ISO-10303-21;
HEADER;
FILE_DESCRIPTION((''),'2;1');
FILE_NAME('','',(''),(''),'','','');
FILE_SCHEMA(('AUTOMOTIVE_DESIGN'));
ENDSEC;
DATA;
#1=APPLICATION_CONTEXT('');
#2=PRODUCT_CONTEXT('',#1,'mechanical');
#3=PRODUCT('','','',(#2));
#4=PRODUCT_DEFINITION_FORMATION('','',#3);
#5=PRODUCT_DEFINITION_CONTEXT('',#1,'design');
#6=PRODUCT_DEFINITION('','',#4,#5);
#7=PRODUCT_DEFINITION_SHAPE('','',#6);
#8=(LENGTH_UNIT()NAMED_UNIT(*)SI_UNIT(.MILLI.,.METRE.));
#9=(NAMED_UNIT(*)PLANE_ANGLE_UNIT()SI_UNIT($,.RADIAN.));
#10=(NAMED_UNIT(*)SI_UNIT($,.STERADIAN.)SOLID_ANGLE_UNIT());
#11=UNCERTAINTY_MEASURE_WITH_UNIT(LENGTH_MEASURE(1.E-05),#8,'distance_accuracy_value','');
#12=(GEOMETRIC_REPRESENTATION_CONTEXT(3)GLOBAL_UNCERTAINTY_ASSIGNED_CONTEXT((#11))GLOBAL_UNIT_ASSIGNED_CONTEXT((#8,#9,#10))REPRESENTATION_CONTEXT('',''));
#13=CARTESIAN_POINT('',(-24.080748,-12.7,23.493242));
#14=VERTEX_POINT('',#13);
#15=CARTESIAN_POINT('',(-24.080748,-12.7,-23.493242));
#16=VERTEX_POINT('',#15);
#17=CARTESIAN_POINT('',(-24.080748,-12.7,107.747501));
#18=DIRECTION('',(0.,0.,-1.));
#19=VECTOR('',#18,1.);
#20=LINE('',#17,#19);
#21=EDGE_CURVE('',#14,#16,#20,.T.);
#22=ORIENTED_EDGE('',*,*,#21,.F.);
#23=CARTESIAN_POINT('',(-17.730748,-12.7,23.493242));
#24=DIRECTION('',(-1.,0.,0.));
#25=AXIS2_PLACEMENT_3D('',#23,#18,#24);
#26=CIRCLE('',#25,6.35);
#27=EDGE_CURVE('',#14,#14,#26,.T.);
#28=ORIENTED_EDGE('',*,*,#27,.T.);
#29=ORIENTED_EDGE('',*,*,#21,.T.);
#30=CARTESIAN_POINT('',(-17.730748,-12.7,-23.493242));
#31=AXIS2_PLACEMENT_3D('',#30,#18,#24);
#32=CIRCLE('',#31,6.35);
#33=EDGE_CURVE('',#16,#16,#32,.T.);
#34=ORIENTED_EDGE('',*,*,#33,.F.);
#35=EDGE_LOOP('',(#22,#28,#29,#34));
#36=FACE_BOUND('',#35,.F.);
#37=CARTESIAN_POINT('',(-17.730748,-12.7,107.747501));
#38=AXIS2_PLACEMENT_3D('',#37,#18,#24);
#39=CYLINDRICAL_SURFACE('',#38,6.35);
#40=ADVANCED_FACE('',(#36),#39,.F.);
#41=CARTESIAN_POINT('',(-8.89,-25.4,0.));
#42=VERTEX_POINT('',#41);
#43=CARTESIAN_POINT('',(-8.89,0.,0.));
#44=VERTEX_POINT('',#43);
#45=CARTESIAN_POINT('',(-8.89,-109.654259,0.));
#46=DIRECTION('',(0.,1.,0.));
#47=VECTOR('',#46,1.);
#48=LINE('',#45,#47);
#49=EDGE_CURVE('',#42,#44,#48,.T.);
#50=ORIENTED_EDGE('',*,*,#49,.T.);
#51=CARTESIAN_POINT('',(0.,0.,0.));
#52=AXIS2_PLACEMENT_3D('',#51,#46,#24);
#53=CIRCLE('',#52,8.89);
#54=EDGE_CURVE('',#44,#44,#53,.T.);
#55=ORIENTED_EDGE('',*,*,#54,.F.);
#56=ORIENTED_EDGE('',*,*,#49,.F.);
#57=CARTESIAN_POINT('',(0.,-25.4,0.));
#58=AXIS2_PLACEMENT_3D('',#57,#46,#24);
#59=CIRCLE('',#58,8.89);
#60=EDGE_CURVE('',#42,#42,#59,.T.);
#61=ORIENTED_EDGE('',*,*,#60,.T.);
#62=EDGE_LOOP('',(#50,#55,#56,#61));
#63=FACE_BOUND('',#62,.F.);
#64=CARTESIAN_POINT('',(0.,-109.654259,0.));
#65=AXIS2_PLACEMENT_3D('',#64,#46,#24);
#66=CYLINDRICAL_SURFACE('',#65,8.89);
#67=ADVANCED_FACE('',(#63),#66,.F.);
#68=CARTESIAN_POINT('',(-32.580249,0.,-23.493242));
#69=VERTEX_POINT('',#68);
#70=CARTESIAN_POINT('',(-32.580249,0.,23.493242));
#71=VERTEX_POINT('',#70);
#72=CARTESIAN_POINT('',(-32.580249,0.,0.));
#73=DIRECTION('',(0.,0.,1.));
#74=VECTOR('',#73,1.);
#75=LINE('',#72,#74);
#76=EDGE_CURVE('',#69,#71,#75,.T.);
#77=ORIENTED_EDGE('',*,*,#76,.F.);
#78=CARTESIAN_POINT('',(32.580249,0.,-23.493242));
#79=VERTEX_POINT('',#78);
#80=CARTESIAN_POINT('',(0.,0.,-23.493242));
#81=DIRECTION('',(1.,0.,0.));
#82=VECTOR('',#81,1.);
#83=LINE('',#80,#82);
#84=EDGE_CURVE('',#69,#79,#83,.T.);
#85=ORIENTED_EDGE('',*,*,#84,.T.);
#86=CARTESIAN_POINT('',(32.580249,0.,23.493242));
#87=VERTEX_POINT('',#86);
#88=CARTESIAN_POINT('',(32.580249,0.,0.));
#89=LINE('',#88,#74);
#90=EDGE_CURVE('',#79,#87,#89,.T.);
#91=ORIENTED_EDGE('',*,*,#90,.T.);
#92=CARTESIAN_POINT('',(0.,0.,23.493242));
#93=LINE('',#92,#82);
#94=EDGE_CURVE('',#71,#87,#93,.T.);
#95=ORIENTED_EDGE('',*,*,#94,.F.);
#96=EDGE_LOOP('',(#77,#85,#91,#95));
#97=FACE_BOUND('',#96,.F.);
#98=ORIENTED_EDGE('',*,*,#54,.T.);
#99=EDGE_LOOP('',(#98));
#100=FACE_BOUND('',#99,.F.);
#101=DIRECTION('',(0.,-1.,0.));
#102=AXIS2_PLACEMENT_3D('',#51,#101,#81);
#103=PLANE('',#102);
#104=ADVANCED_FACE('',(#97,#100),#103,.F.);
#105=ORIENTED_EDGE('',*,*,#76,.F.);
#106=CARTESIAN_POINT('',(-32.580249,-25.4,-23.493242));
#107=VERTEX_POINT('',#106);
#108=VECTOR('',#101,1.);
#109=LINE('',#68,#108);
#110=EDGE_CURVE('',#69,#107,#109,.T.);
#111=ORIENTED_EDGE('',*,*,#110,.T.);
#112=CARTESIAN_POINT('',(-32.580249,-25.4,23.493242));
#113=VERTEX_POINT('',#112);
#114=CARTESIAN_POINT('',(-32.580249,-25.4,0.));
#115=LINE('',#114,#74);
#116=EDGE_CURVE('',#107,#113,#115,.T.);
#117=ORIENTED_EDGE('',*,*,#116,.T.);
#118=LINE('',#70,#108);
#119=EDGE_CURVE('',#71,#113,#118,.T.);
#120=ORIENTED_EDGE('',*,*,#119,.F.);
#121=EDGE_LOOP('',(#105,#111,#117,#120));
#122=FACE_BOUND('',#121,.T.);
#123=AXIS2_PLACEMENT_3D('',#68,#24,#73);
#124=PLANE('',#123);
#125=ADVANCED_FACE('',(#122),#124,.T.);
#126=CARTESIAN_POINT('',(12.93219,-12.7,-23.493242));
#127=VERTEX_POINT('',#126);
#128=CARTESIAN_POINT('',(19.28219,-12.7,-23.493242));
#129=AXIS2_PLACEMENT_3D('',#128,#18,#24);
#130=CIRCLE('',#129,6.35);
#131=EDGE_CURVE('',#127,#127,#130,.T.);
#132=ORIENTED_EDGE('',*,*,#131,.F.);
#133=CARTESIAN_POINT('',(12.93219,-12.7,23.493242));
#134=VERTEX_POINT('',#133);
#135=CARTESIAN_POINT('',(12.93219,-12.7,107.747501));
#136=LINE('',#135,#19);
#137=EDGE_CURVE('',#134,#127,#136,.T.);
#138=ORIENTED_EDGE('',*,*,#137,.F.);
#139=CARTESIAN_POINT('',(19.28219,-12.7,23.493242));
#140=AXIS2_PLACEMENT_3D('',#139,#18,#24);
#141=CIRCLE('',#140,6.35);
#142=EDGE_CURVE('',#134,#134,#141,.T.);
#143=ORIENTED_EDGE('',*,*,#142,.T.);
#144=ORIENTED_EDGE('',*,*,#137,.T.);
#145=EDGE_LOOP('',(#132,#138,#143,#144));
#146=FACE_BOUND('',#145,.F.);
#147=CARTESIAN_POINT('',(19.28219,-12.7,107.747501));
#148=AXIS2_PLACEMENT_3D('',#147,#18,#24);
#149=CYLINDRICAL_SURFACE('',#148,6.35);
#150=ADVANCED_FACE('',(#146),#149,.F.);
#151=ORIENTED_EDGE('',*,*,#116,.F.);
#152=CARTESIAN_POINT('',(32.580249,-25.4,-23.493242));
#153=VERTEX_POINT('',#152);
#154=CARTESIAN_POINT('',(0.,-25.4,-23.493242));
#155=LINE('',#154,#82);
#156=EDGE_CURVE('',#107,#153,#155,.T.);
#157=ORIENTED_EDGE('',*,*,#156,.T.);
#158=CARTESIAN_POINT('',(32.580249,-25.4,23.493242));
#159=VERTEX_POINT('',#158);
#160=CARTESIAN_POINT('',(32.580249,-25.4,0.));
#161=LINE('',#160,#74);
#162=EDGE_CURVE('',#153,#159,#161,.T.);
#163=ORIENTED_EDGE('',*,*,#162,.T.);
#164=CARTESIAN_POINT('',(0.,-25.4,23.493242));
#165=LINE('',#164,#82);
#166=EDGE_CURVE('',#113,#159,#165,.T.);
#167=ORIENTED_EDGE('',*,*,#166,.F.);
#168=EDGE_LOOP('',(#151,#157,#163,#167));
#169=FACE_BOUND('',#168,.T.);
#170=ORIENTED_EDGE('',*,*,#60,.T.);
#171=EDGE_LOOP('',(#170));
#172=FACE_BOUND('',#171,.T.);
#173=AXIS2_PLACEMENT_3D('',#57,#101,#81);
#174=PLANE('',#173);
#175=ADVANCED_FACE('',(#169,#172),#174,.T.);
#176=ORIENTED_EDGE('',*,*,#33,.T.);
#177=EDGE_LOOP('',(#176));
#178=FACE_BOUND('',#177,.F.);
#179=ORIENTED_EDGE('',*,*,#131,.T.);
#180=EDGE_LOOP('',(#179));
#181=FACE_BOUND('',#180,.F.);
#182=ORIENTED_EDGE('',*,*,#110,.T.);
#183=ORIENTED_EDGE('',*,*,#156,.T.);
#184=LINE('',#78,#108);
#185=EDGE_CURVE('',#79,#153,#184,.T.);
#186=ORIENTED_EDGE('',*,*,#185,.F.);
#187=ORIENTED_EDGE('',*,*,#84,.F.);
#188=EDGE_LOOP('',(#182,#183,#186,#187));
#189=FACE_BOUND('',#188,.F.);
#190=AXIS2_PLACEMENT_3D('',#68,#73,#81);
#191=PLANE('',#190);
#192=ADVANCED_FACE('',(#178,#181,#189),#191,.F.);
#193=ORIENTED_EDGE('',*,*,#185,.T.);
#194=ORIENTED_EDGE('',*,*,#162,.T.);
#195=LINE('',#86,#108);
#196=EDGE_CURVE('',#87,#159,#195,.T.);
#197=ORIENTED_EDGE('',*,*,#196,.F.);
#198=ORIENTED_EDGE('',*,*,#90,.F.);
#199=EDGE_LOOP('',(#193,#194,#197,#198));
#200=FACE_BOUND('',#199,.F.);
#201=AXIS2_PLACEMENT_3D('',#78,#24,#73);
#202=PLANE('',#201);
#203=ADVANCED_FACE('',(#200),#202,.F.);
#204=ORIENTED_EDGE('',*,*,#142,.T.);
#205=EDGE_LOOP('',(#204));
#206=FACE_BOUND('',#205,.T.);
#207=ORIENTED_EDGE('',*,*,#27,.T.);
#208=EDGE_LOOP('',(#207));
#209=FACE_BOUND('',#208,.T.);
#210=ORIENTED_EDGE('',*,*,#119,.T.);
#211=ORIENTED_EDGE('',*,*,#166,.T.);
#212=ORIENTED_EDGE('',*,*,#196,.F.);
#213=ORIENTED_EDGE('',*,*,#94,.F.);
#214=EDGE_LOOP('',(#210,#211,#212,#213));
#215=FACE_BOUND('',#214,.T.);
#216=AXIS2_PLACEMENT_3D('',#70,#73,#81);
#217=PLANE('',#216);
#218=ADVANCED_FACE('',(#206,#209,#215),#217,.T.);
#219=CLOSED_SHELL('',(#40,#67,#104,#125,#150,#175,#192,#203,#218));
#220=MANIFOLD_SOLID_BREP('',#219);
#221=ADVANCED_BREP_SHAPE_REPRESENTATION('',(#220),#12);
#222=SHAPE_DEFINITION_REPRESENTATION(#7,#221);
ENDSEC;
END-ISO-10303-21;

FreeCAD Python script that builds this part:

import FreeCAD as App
import Part
import Sketcher
Q = App.Units.Quantity


def add_polygon(sketch, points):
    """Adds a closed chain of lines whose ends are joined by coincident constraints."""
    first, n = sketch.GeometryCount, len(points)
    for a, b in zip(points, points[1:] + points[:1]):
        sketch.addGeometry(Part.LineSegment(App.Vector(*a, 0), App.Vector(*b, 0)), False)
    for i in range(n):
        sketch.addConstraint(Sketcher.Constraint("Coincident", first + i, 2, first + (i + 1) % n, 1))

doc = App.newDocument("Part")
body = doc.addObject("PartDesign::Body", "Body")

# Sketch on XZ plane
sketch1 = body.newObject("Sketcher::SketchObject", "Sketch")
sketch1.AttachmentSupport = (doc.getObject("XZ_Plane"), [""])
sketch1.MapMode = "FlatFace"
add_polygon(sketch1, [(-32.580249, 23.493242), (-32.580249, -23.493242), (32.580249, -23.493242), (32.580249, 23.493242)])  # lines 0-3
sketch1.addConstraint([
    Sketcher.Constraint("Vertical", 0),
    Sketcher.Constraint("Horizontal", 1),
    Sketcher.Constraint("Vertical", 2),
    Sketcher.Constraint("Horizontal", 3),
    Sketcher.Constraint("Symmetric", 0, 2, 2, 2, -1, 1),
    Sketcher.Constraint("DistanceX", 1, 1, 1, 2, 65.160498),
    Sketcher.Constraint("DistanceY", 0, 2, 0, 1, 46.986484),
])
pad1 = body.newObject("PartDesign::Pad", "Pad")
pad1.Profile = sketch1
pad1.Length = Q("1 in")

# Sketch on XZ plane
sketch2 = body.newObject("Sketcher::SketchObject", "Sketch001")
sketch2.AttachmentSupport = (doc.getObject("XZ_Plane"), [""])
sketch2.MapMode = "FlatFace"
sketch2.AttachmentOffset = App.Placement(App.Vector(0, 0, 1 * 25.4), App.Rotation())
sketch2.addGeometry(Part.Circle(App.Vector(0, 0, 0), App.Vector(0, 0, 1), 8.89), False)
sketch2.addConstraint([
    Sketcher.Constraint("Coincident", 0, 3, -1, 1),
    Sketcher.Constraint("Diameter", 0, Q("0.7 in")),
])
doc.recompute()
hole = body.newObject("PartDesign::Hole", "Hole")
hole.Profile = sketch2
hole.ThreadType = "None"
hole.Diameter = Q("0.7 in")
hole.DepthType = "ThroughAll"

# Sketch on XY plane
sketch3 = body.newObject("Sketcher::SketchObject", "Sketch002")
sketch3.AttachmentSupport = (doc.getObject("XY_Plane"), [""])
sketch3.MapMode = "FlatFace"
sketch3.AttachmentOffset = App.Placement(App.Vector(0, 0, 23.493242), App.Rotation())
sketch3.addGeometry(Part.Circle(App.Vector(-17.730748, -12.7, 0), App.Vector(0, 0, 1), 6.35), False)
sketch3.addConstraint([
    Sketcher.Constraint("Diameter", 0, Q("0.5 in")),
    Sketcher.Constraint("DistanceY", 0, 3, -1, 1, Q("0.5 in")),
    Sketcher.Constraint("DistanceX", 0, 3, -1, 1, 17.730748),
])
doc.recompute()
hole2 = body.newObject("PartDesign::Hole", "Hole001")
hole2.Profile = sketch3
hole2.ThreadType = "None"
hole2.Diameter = Q("0.5 in")
hole2.DepthType = "ThroughAll"

# Sketch on XY plane
sketch4 = body.newObject("Sketcher::SketchObject", "Sketch003")
sketch4.AttachmentSupport = (doc.getObject("XY_Plane"), [""])
sketch4.MapMode = "FlatFace"
sketch4.AttachmentOffset = App.Placement(App.Vector(0, 0, 23.493242), App.Rotation())
sketch4.addGeometry(Part.Circle(App.Vector(19.28219, -12.7, 0), App.Vector(0, 0, 1), 6.35), False)
sketch4.addConstraint([
    Sketcher.Constraint("Diameter", 0, Q("0.5 in")),
    Sketcher.Constraint("DistanceY", 0, 3, -1, 1, Q("0.5 in")),
    Sketcher.Constraint("DistanceX", -1, 1, 0, 3, 19.28219),
])
doc.recompute()
hole3 = body.newObject("PartDesign::Hole", "Hole002")
hole3.Profile = sketch4
hole3.ThreadType = "None"
hole3.Diameter = Q("0.5 in")
hole3.DepthType = "ThroughAll"

doc.recompute()
